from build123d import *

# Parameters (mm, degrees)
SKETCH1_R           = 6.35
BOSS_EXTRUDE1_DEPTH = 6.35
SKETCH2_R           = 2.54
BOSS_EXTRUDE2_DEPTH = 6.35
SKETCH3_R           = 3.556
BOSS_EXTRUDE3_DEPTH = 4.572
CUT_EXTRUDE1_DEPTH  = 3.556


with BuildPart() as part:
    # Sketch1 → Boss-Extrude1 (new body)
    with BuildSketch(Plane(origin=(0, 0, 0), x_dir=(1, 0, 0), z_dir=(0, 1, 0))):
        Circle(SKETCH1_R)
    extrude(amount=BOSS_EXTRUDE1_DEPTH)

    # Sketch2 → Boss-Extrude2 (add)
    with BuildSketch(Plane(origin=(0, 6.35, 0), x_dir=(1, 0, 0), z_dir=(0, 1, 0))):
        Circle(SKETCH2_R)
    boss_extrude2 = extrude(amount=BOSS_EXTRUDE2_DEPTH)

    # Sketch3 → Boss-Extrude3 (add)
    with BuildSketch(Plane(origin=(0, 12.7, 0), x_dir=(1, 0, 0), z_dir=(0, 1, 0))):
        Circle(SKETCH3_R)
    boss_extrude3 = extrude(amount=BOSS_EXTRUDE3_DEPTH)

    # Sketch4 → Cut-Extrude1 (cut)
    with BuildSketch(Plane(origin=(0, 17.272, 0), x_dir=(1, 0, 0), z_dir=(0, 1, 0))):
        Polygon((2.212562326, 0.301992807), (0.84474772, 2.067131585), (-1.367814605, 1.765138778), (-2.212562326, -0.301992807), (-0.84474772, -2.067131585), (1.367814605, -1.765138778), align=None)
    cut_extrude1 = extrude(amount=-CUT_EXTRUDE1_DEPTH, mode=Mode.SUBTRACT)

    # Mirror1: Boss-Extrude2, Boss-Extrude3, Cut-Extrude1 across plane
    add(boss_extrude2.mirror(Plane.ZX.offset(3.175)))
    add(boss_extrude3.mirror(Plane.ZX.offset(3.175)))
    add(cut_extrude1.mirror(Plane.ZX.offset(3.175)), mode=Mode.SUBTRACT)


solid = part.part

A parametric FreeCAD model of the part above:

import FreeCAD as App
import Part
import Sketcher
from FreeCAD import Vector
Q = App.Units.Quantity

doc = App.newDocument("Part")
body = doc.addObject("PartDesign::Body", "Body")

sketch1 = body.newObject("Sketcher::SketchObject", "Sketch")
sketch1.AttachmentSupport = (doc.getObject("XZ_Plane"), [""])
sketch1.MapMode = "FlatFace"
sketch1.addGeometry(Part.Circle(Vector(0, 0, 0), Vector(0, 0, 1), 6), False)
sketch1.addConstraint(Sketcher.Constraint("Coincident", 0, 3, -1, 1))
sketch1.addConstraint(Sketcher.Constraint("Diameter", 0, Q("0.5 in")))
pad1 = body.newObject("PartDesign::Pad", "Pad")
pad1.Profile = sketch1
pad1.Length = Q("0.25 in")
pad1.Reversed = True

sketch2 = body.newObject("Sketcher::SketchObject", "Sketch001")
sketch2.AttachmentSupport = (doc.getObject("XZ_Plane"), [""])
sketch2.MapMode = "FlatFace"
sketch2.AttachmentOffset = App.Placement(Vector(0, 0, -0.25 * 25.4), App.Rotation())
sketch2.addGeometry(Part.Circle(Vector(0, 0, 0), Vector(0, 0, 1), 2.5), False)
sketch2.addConstraint(Sketcher.Constraint("Coincident", 0, 3, -1, 1))
sketch2.addConstraint(Sketcher.Constraint("Diameter", 0, Q("0.2 in")))
pad2 = body.newObject("PartDesign::Pad", "Pad001")
pad2.Profile = sketch2
pad2.Length = Q("0.25 in")
pad2.Reversed = True

sketch3 = body.newObject("Sketcher::SketchObject", "Sketch002")
sketch3.AttachmentSupport = (doc.getObject("XZ_Plane"), [""])
sketch3.MapMode = "FlatFace"
sketch3.AttachmentOffset = App.Placement(Vector(0, 0, -0.5 * 25.4), App.Rotation())
sketch3.addGeometry(Part.Circle(Vector(0, 0, 0), Vector(0, 0, 1), 3.6), False)
sketch3.addConstraint(Sketcher.Constraint("Coincident", 0, 3, -1, 1))
sketch3.addConstraint(Sketcher.Constraint("Diameter", 0, Q("0.28 in")))
pad3 = body.newObject("PartDesign::Pad", "Pad002")
pad3.Profile = sketch3
pad3.Length = Q("0.18 in")
pad3.Reversed = True

sketch4 = body.newObject("Sketcher::SketchObject", "Sketch003")
sketch4.AttachmentSupport = (doc.getObject("XZ_Plane"), [""])
sketch4.MapMode = "FlatFace"
sketch4.AttachmentOffset = App.Placement(Vector(0, 0, -0.68 * 25.4), App.Rotation())
sketch4.addGeometry(Part.LineSegment(Vector(2.2, -0.3, 0), Vector(0.8, -2.1, 0)), False)
sketch4.addGeometry(Part.LineSegment(Vector(0.8, -2.1, 0), Vector(-1.4, -1.8, 0)), False)
sketch4.addGeometry(Part.LineSegment(Vector(-1.4, -1.8, 0), Vector(-2.2, 0.3, 0)), False)
sketch4.addGeometry(Part.LineSegment(Vector(-2.2, 0.3, 0), Vector(-0.8, 2.1, 0)), False)
sketch4.addGeometry(Part.LineSegment(Vector(-0.8, 2.1, 0), Vector(1.4, 1.8, 0)), False)
sketch4.addGeometry(Part.LineSegment(Vector(1.4, 1.8, 0), Vector(2.2, -0.3, 0)), False)
sketch4.addConstraint(Sketcher.Constraint("Coincident", 0, 2, 1, 1))
sketch4.addConstraint(Sketcher.Constraint("Coincident", 1, 2, 2, 1))
sketch4.addConstraint(Sketcher.Constraint("Coincident", 2, 2, 3, 1))
sketch4.addConstraint(Sketcher.Constraint("Coincident", 3, 2, 4, 1))
sketch4.addConstraint(Sketcher.Constraint("Coincident", 4, 2, 5, 1))
sketch4.addConstraint(Sketcher.Constraint("Coincident", 5, 2, 0, 1))
sketch4.addConstraint(Sketcher.Constraint("Symmetric", 0, 2, 3, 2, -1, 1))
sketch4.addConstraint(Sketcher.Constraint("Symmetric", 1, 2, 4, 2, -1, 1))
sketch4.addConstraint(Sketcher.Constraint("Symmetric", 2, 2, 5, 2, -1, 1))
sketch4.addConstraint(Sketcher.Constraint("Equal", 0, 1))
sketch4.addConstraint(Sketcher.Constraint("Equal", 1, 2))
sketch4.addConstraint(Sketcher.Constraint("DistanceY", 0, 2, -1, 1, Q("2.067132 mm")))
sketch4.addConstraint(Sketcher.Constraint("DistanceY", 1, 2, -1, 1, Q("1.765139 mm")))
sketch4.addConstraint(Sketcher.Constraint("DistanceY", 1, 2, 2, 2, Q("2.067132 mm")))
sketch4.addConstraint(Sketcher.Constraint("DistanceX", 2, 2, 0, 2, Q("3.05731 mm")))
pocket1 = body.newObject("PartDesign::Pocket", "Pocket")
pocket1.Profile = sketch4
pocket1.Length = Q("0.14 in")
pocket1.Reversed = True
doc.recompute()

datumplane = body.newObject("PartDesign::Plane", "DatumPlane")
datumplane.AttachmentSupport = (doc.getObject("XZ_Plane"), [""])
datumplane.MapMode = "FlatFace"
datumplane.AttachmentOffset = App.Placement(Vector(0, 0, -0.125 * 25.4), App.Rotation())
mirrored = body.newObject("PartDesign::Mirrored", "Mirrored")
mirrored.Originals = [pad2, pad3, pocket1]
mirrored.MirrorPlane = (datumplane, [""])
body.Tip = mirrored

doc.recompute()
